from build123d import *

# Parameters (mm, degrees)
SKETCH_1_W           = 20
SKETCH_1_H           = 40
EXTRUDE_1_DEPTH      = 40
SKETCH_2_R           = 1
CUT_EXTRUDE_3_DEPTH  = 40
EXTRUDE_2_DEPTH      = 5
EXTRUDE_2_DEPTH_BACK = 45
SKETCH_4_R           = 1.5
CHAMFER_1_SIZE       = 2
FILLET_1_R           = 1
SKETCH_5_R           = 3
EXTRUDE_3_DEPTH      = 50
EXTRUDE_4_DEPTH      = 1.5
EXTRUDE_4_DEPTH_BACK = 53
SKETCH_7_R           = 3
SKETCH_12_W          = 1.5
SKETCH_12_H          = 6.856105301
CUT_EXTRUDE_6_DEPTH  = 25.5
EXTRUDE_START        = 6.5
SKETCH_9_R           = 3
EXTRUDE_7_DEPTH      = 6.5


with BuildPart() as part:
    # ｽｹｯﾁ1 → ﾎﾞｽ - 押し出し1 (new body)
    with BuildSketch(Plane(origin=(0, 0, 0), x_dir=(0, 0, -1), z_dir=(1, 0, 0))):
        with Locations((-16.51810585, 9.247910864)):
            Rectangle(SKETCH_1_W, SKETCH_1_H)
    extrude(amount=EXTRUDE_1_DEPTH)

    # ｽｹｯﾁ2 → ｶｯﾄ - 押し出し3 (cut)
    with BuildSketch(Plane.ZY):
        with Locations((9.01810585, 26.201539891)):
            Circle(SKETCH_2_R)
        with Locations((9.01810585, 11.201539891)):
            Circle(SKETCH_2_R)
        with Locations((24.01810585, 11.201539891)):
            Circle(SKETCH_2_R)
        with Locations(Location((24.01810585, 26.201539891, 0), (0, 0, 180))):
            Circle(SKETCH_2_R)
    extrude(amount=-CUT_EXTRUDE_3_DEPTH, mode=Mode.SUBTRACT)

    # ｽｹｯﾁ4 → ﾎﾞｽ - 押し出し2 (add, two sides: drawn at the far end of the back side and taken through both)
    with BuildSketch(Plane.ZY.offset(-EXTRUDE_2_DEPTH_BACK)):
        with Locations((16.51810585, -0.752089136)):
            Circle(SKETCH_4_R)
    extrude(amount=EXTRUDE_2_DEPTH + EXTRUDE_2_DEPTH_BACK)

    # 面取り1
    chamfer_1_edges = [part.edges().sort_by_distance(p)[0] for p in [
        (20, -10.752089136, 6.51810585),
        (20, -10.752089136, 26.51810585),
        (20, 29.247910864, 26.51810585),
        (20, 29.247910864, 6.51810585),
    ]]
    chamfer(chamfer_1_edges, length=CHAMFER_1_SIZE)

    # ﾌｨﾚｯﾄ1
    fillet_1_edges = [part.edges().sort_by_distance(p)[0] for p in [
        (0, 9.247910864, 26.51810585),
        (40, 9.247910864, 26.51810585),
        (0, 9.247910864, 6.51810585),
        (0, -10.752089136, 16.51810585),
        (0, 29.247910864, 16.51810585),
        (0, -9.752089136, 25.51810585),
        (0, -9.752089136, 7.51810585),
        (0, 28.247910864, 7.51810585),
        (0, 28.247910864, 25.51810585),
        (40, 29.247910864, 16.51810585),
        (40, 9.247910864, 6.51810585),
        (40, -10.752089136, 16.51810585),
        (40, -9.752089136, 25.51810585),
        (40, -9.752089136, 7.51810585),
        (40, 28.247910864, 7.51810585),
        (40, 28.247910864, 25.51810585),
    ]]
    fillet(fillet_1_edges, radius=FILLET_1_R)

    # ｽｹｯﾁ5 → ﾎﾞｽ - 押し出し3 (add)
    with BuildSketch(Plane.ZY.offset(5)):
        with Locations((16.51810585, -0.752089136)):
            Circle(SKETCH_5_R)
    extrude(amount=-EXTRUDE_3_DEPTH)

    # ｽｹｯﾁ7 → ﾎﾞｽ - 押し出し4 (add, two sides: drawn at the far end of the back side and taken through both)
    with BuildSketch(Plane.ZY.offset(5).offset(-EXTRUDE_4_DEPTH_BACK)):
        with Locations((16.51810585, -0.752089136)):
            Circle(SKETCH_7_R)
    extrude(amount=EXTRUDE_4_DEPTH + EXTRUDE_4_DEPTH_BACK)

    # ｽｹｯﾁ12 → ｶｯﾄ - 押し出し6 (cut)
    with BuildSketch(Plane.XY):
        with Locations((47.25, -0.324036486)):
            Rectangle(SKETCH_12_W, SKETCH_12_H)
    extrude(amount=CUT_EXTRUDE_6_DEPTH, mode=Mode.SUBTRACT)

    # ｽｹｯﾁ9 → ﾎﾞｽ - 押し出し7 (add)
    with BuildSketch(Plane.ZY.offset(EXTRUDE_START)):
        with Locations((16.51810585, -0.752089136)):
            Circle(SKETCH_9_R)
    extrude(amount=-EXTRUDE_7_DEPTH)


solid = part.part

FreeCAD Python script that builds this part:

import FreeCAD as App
import Part
import Sketcher
from FreeCAD import Vector


def edges_at(feature, points):
    """Names of the edges that pass closest to the given points."""
    edges = feature.Shape.Edges
    near = lambda p: min(range(len(edges)), key=lambda i: edges[i].distToShape(Part.Vertex(*p))[0])
    return sorted({f"Edge{near(p) + 1}" for p in points})

doc = App.newDocument("Part")
body = doc.addObject("PartDesign::Body", "Body")

# Sketch on YZ plane
sketch1 = doc.addObject("Sketcher::SketchObject", "Sketch")
body.addObject(sketch1)
sketch1.AttachmentSupport = (doc.YZ_Plane, [""])
sketch1.MapMode = "FlatFace"
sketch1.addGeometry([
    Part.LineSegment(Vector(29, 27, 0), Vector(-11, 27, 0)),
    Part.LineSegment(Vector(-11, 27, 0), Vector(-11, 7, 0)),
    Part.LineSegment(Vector(-11, 7, 0), Vector(29, 7, 0)),
    Part.LineSegment(Vector(29, 7, 0), Vector(29, 27, 0)),
], False)
sketch1.addConstraint([
    Sketcher.Constraint("Coincident", 0, 2, 1, 1),
    Sketcher.Constraint("Coincident", 1, 2, 2, 1),
    Sketcher.Constraint("Coincident", 2, 2, 3, 1),
    Sketcher.Constraint("Coincident", 3, 2, 0, 1),
    Sketcher.Constraint("Horizontal", 0),
    Sketcher.Constraint("Vertical", 1),
    Sketcher.Constraint("Horizontal", 2),
    Sketcher.Constraint("Vertical", 3),
    Sketcher.Constraint("DistanceX", 0, 2, 0, 1, 40.0),
    Sketcher.Constraint("DistanceY", 1, 2, 1, 1, 20.0),
    Sketcher.Constraint("DistanceX", 0, 2, -1, 1, 10.752089),
    Sketcher.Constraint("DistanceY", -1, 1, 0, 2, 26.518106),
])
pad1 = doc.addObject("PartDesign::Pad", "Pad")
body.addObject(pad1)
pad1.Profile = sketch1
pad1.Length = 40

# Sketch on YZ plane
sketch2 = doc.addObject("Sketcher::SketchObject", "Sketch001")
body.addObject(sketch2)
sketch2.AttachmentSupport = (doc.YZ_Plane, [""])
sketch2.MapMode = "FlatFace"
sketch2.addGeometry([
    Part.Circle(Vector(26.2, 9, 0), Vector(0, 0, 1), 1),
    Part.Circle(Vector(11.2, 9, 0), Vector(0, 0, 1), 1),
    Part.Circle(Vector(11.2, 24, 0), Vector(0, 0, 1), 1),
    Part.Circle(Vector(26.2, 24, 0), Vector(0, 0, 1), 1),
], False)
sketch2.addConstraint([
    Sketcher.Constraint("Equal", 0, 1),
    Sketcher.Constraint("Equal", 1, 2),
    Sketcher.Constraint("Equal", 2, 3),
    Sketcher.Constraint("Horizontal", 0, 3, 1, 3),
    Sketcher.Constraint("Horizontal", 2, 3, 3, 3),
    Sketcher.Constraint("Vertical", 1, 3, 2, 3),
    Sketcher.Constraint("Vertical", 0, 3, 3, 3),
    Sketcher.Constraint("Diameter", 0, 2.0),
    Sketcher.Constraint("DistanceX", 1, 3, 0, 3, 15.0),
    Sketcher.Constraint("DistanceY", 1, 3, 2, 3, 15.0),
    Sketcher.Constraint("DistanceX", -1, 1, 0, 3, 26.20154),
    Sketcher.Constraint("DistanceY", -1, 1, 0, 3, 9.018106),
])
pocket1 = doc.addObject("PartDesign::Pocket", "Pocket")
body.addObject(pocket1)
pocket1.Profile = sketch2
pocket1.Length = 40
pocket1.Reversed = True

# Sketch on YZ plane
sketch3 = doc.addObject("Sketcher::SketchObject", "Sketch002")
body.addObject(sketch3)
sketch3.AttachmentSupport = (doc.YZ_Plane, [""])
sketch3.MapMode = "FlatFace"
sketch3.addGeometry(Part.Circle(Vector(-0.8, 16.5, 0), Vector(0, 0, 1), 1.5), False)
sketch3.addConstraint([
    Sketcher.Constraint("Diameter", 0, 3.0),
    Sketcher.Constraint("DistanceX", 0, 3, -1, 1, 0.752089),
    Sketcher.Constraint("DistanceY", -1, 1, 0, 3, 16.518106),
])
pad2 = doc.addObject("PartDesign::Pad", "Pad001")
body.addObject(pad2)
pad2.Profile = sketch3
pad2.Type = "TwoLengths"
pad2.Length = 5
pad2.Length2 = 45
pad2.Reversed = True
doc.recompute()

chamfer = doc.addObject("PartDesign::Chamfer", "Chamfer")
body.addObject(chamfer)
chamfer.Base = (pad2, edges_at(pad2, [
    (20, -10.752, 6.518),
    (20, -10.752, 26.518),
    (20, 29.248, 26.518),
    (20, 29.248, 6.518),
]))
chamfer.Size = 2
doc.recompute()

fillet = doc.addObject("PartDesign::Fillet", "Fillet")
body.addObject(fillet)
fillet.Base = (chamfer, edges_at(chamfer, [
    (0, 9.248, 26.518),
    (40, 9.248, 26.518),
    (0, 9.248, 6.518),
    (0, -10.752, 16.518),
    (0, 29.248, 16.518),
    (0, -9.752, 25.518),
    (0, -9.752, 7.518),
    (0, 28.248, 7.518),
    (0, 28.248, 25.518),
    (40, 29.248, 16.518),
    (40, 9.248, 6.518),
    (40, -10.752, 16.518),
    (40, -9.752, 25.518),
    (40, -9.752, 7.518),
    (40, 28.248, 7.518),
    (40, 28.248, 25.518),
]))
fillet.Radius = 1

# Sketch on YZ plane
sketch4 = doc.addObject("Sketcher::SketchObject", "Sketch003")
body.addObject(sketch4)
sketch4.AttachmentSupport = (doc.YZ_Plane, [""])
sketch4.MapMode = "FlatFace"
sketch4.AttachmentOffset = App.Placement(Vector(0, 0, -5), App.Rotation())
sketch4.addGeometry(Part.Circle(Vector(-0.8, 16.5, 0), Vector(0, 0, 1), 3), False)
sketch4.addConstraint([
    Sketcher.Constraint("Diameter", 0, 6.0),
    Sketcher.Constraint("DistanceX", 0, 3, -1, 1, 0.752089),
    Sketcher.Constraint("DistanceY", -1, 1, 0, 3, 16.518106),
])
pad3 = doc.addObject("PartDesign::Pad", "Pad002")
body.addObject(pad3)
pad3.Profile = sketch4
pad3.Length = 50

# Sketch on YZ plane
sketch5 = doc.addObject("Sketcher::SketchObject", "Sketch004")
body.addObject(sketch5)
sketch5.AttachmentSupport = (doc.YZ_Plane, [""])
sketch5.MapMode = "FlatFace"
sketch5.AttachmentOffset = App.Placement(Vector(0, 0, -5), App.Rotation())
sketch5.addGeometry(Part.Circle(Vector(-0.8, 16.5, 0), Vector(0, 0, 1), 3), False)
sketch5.addConstraint([
    Sketcher.Constraint("Diameter", 0, 6.0),
    Sketcher.Constraint("DistanceX", 0, 3, -1, 1, 0.752089),
    Sketcher.Constraint("DistanceY", -1, 1, 0, 3, 16.518106),
])
pad4 = doc.addObject("PartDesign::Pad", "Pad003")
body.addObject(pad4)
pad4.Profile = sketch5
pad4.Type = "TwoLengths"
pad4.Length = 1.5
pad4.Length2 = 53
pad4.Reversed = True

# Sketch on XY plane
sketch6 = doc.addObject("Sketcher::SketchObject", "Sketch005")
body.addObject(sketch6)
sketch6.AttachmentSupport = (doc.XY_Plane, [""])
sketch6.MapMode = "FlatFace"
sketch6.addGeometry([
    Part.LineSegment(Vector(46.5, 3.1, 0), Vector(46.5, -3.8, 0)),
    Part.LineSegment(Vector(46.5, -3.8, 0), Vector(48, -3.8, 0)),
    Part.LineSegment(Vector(48, -3.8, 0), Vector(48, 3.1, 0)),
    Part.LineSegment(Vector(48, 3.1, 0), Vector(46.5, 3.1, 0)),
], False)
sketch6.addConstraint([
    Sketcher.Constraint("Coincident", 0, 2, 1, 1),
    Sketcher.Constraint("Coincident", 1, 2, 2, 1),
    Sketcher.Constraint("Coincident", 2, 2, 3, 1),
    Sketcher.Constraint("Coincident", 3, 2, 0, 1),
    Sketcher.Constraint("Vertical", 0),
    Sketcher.Constraint("Horizontal", 1),
    Sketcher.Constraint("Vertical", 2),
    Sketcher.Constraint("Horizontal", 3),
    Sketcher.Constraint("DistanceX", 1, 1, 1, 2, 1.5),
    Sketcher.Constraint("DistanceX", -1, 1, 1, 2, 48.0),
    Sketcher.Constraint("DistanceY", 0, 2, 0, 1, 6.856105),
    Sketcher.Constraint("DistanceY", 0, 2, -1, 1, 3.752089),
])
pocket2 = doc.addObject("PartDesign::Pocket", "Pocket001")
body.addObject(pocket2)
pocket2.Profile = sketch6
pocket2.Length = 25.5
pocket2.Reversed = True

# Sketch on YZ plane
sketch7 = doc.addObject("Sketcher::SketchObject", "Sketch006")
body.addObject(sketch7)
sketch7.AttachmentSupport = (doc.YZ_Plane, [""])
sketch7.MapMode = "FlatFace"
sketch7.AttachmentOffset = App.Placement(Vector(0, 0, -6.5), App.Rotation())
sketch7.addGeometry(Part.Circle(Vector(-0.8, 16.5, 0), Vector(0, 0, 1), 3), False)
sketch7.addConstraint([
    Sketcher.Constraint("Diameter", 0, 6.0),
    Sketcher.Constraint("DistanceX", 0, 3, -1, 1, 0.752089),
    Sketcher.Constraint("DistanceY", -1, 1, 0, 3, 16.518106),
])
pad5 = doc.addObject("PartDesign::Pad", "Pad004")
body.addObject(pad5)
pad5.Profile = sketch7
pad5.Length = 6.5

doc.recompute()
